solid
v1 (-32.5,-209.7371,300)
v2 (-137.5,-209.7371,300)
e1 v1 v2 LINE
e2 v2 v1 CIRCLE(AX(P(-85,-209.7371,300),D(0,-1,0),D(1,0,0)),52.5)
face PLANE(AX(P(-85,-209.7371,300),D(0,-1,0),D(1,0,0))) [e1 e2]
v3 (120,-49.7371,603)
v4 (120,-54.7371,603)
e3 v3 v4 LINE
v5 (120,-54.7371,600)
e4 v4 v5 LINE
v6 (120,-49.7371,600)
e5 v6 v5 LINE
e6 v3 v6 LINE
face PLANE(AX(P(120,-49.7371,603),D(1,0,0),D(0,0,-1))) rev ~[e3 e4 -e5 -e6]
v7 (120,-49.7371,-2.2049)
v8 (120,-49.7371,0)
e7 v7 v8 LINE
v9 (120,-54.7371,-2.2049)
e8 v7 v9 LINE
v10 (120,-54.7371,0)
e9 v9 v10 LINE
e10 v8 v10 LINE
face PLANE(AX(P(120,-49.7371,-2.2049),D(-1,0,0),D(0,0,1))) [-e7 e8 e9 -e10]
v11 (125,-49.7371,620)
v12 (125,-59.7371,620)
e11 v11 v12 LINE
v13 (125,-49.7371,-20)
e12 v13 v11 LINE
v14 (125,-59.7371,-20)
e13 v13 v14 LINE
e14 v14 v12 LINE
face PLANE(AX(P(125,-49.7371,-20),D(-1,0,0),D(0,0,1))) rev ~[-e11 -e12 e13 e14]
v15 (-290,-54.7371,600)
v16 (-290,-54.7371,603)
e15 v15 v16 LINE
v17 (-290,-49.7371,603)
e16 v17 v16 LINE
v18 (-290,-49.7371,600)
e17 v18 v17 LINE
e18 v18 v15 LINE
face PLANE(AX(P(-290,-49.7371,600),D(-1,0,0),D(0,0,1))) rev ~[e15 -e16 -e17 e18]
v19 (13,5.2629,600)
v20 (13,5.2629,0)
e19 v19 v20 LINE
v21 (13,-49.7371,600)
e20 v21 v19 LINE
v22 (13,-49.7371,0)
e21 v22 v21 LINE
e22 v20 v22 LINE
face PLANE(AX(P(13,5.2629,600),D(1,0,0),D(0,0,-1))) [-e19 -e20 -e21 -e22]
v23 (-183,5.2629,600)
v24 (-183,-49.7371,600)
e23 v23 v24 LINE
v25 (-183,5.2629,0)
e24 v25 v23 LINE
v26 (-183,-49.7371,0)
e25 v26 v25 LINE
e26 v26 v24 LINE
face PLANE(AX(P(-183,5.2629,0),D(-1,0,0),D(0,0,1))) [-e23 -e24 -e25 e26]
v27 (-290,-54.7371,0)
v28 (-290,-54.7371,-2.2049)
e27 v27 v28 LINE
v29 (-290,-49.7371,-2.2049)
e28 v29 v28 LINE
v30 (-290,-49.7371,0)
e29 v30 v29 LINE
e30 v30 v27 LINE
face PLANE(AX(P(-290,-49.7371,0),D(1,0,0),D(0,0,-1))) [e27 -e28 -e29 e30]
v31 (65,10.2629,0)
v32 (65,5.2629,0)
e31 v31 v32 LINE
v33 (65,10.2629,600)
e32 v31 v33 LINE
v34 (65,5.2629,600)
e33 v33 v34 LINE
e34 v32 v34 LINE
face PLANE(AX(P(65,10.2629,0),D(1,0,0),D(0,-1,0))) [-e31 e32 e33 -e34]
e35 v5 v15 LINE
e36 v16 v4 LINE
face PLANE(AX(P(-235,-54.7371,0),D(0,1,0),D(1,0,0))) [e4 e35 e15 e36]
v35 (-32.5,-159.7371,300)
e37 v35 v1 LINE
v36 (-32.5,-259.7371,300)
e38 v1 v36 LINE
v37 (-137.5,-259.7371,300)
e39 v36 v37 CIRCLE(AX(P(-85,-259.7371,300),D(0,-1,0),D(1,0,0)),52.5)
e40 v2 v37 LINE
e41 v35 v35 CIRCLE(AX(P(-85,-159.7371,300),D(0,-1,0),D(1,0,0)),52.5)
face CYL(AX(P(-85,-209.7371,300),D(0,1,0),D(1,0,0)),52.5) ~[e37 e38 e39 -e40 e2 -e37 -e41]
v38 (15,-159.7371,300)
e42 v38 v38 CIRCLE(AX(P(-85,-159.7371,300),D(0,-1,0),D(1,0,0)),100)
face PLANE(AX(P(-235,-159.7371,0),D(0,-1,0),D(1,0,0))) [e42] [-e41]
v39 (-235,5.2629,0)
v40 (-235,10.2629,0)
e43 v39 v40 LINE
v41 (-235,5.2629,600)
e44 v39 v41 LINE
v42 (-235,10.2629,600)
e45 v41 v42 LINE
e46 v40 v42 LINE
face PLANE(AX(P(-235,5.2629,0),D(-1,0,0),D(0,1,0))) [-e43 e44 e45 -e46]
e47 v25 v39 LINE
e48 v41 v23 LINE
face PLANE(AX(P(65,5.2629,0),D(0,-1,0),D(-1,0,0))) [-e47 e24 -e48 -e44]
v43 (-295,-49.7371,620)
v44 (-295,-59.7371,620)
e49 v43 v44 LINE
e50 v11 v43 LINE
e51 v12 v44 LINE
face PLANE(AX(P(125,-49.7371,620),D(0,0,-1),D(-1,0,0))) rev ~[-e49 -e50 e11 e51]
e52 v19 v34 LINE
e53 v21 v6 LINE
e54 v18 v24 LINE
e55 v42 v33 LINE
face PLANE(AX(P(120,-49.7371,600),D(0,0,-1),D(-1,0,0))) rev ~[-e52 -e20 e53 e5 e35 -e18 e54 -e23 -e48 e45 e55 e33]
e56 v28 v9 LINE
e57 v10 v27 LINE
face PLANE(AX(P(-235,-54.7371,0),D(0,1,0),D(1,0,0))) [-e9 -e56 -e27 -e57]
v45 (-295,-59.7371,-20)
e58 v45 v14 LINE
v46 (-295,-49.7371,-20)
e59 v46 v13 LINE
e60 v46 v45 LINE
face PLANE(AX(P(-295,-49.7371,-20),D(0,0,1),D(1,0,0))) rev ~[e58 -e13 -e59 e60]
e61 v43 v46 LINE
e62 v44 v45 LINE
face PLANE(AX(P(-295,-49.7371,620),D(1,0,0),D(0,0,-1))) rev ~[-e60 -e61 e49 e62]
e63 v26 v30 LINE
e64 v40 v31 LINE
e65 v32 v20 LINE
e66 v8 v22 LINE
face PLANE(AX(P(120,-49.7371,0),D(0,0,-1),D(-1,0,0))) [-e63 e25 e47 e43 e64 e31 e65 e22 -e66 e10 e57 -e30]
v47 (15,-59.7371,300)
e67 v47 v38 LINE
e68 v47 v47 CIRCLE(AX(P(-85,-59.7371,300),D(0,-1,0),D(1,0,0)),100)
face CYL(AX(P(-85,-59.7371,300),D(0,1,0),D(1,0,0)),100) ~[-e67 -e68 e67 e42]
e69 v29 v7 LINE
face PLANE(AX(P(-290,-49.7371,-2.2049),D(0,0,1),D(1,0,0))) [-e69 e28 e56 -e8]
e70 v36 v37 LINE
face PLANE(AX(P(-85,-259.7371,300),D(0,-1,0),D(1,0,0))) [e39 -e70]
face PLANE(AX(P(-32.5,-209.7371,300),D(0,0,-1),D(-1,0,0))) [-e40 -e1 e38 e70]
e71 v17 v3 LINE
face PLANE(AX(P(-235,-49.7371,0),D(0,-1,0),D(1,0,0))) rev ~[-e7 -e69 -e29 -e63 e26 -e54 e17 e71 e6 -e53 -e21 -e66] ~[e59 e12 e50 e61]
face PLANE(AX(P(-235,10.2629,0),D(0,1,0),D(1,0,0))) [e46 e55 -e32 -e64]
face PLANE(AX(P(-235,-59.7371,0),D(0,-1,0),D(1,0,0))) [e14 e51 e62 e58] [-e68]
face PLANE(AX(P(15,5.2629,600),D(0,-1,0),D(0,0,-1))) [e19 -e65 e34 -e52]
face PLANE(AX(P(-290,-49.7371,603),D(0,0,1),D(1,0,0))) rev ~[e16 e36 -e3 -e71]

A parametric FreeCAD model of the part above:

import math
import FreeCAD as App
import Part
import Sketcher
Q = App.Units.Quantity


def add_polygon(sketch, points):
    """Adds a closed chain of lines whose ends are joined by coincident constraints."""
    first, n = sketch.GeometryCount, len(points)
    for a, b in zip(points, points[1:] + points[:1]):
        sketch.addGeometry(Part.LineSegment(App.Vector(*a, 0), App.Vector(*b, 0)), False)
    for i in range(n):
        sketch.addConstraint(Sketcher.Constraint("Coincident", first + i, 2, first + (i + 1) % n, 1))

doc = App.newDocument("Part")
body = doc.addObject("PartDesign::Body", "Body")

sketch1 = body.newObject("Sketcher::SketchObject", "Sketch")
sketch1.AttachmentSupport = (doc.getObject("XY_Plane"), [""])
sketch1.MapMode = "FlatFace"
add_polygon(sketch1, [(65, 10), (-235, 10), (-235, 5), (65, 5)])
sketch1.addConstraint(Sketcher.Constraint("Horizontal", 0))
sketch1.addConstraint(Sketcher.Constraint("Vertical", 1))
sketch1.addConstraint(Sketcher.Constraint("Horizontal", 2))
sketch1.addConstraint(Sketcher.Constraint("Vertical", 3))
sketch1.addConstraint(Sketcher.Constraint("DistanceX", 0, 2, 0, 1, Q("300 mm")))
sketch1.addConstraint(Sketcher.Constraint("DistanceY", 1, 2, 1, 1, Q("5 mm")))
sketch1.addConstraint(Sketcher.Constraint("DistanceX", 0, 2, -1, 1, Q("235 mm")))
sketch1.addConstraint(Sketcher.Constraint("DistanceY", -1, 1, 0, 2, Q("10.263 mm")))
pad1 = body.newObject("PartDesign::Pad", "Pad")
pad1.Profile = sketch1
pad1.Length = 600

sketch2 = body.newObject("Sketcher::SketchObject", "Sketch001")
sketch2.AttachmentSupport = (doc.getObject("XZ_Plane"), [""])
sketch2.MapMode = "FlatFace"
sketch2.AttachmentOffset = App.Placement(App.Vector(0, 0, -5.2629), App.Rotation())
add_polygon(sketch2, [(-185, 600), (-185, 0), (15, 0), (15, 600)])
sketch2.addConstraint(Sketcher.Constraint("Vertical", 0))
sketch2.addConstraint(Sketcher.Constraint("Horizontal", 1))
sketch2.addConstraint(Sketcher.Constraint("Vertical", 2))
sketch2.addConstraint(Sketcher.Constraint("Horizontal", 3))
sketch2.addConstraint(Sketcher.Constraint("PointOnObject", 0, 2, -1))
sketch2.addConstraint(Sketcher.Constraint("DistanceX", 1, 1, 1, 2, Q("200 mm")))
sketch2.addConstraint(Sketcher.Constraint("DistanceY", 0, 2, 0, 1, Q("600 mm")))
sketch2.addConstraint(Sketcher.Constraint("DistanceX", 0, 2, -1, 1, Q("185 mm")))
pad2 = body.newObject("PartDesign::Pad", "Pad001")
pad2.Profile = sketch2
pad2.Length = 55

sketch3 = body.newObject("Sketcher::SketchObject", "Sketch002")
sketch3.AttachmentSupport = (doc.getObject("XZ_Plane"), [""])
sketch3.MapMode = "FlatFace"
sketch3.AttachmentOffset = App.Placement(App.Vector(0, 0, 49.7371), App.Rotation())
add_polygon(sketch3, [(-295, 620), (-295, -20), (125, -20), (125, 620)])
sketch3.addConstraint(Sketcher.Constraint("Vertical", 0))
sketch3.addConstraint(Sketcher.Constraint("Horizontal", 1))
sketch3.addConstraint(Sketcher.Constraint("Vertical", 2))
sketch3.addConstraint(Sketcher.Constraint("Horizontal", 3))
sketch3.addConstraint(Sketcher.Constraint("DistanceX", 1, 1, 1, 2, Q("420 mm")))
sketch3.addConstraint(Sketcher.Constraint("DistanceY", 0, 2, 0, 1, Q("640 mm")))
sketch3.addConstraint(Sketcher.Constraint("DistanceY", 0, 2, -1, 1, Q("20 mm")))
sketch3.addConstraint(Sketcher.Constraint("DistanceX", 0, 2, -1, 1, Q("295 mm")))
pad3 = body.newObject("PartDesign::Pad", "Pad002")
pad3.Profile = sketch3
pad3.Length = 10

sketch4 = body.newObject("Sketcher::SketchObject", "Sketch003")
sketch4.AttachmentSupport = (doc.getObject("XZ_Plane"), [""])
sketch4.MapMode = "FlatFace"
sketch4.AttachmentOffset = App.Placement(App.Vector(0, 0, 49.7371), App.Rotation())
add_polygon(sketch4, [(120, -2.2), (-290, -2.2), (-290, 0), (120, 0)])
add_polygon(sketch4, [(-290, 600), (-290, 603), (120, 603), (120, 600)])
sketch4.addConstraint(Sketcher.Constraint("Horizontal", 0))
sketch4.addConstraint(Sketcher.Constraint("Vertical", 1))
sketch4.addConstraint(Sketcher.Constraint("Horizontal", 2))
sketch4.addConstraint(Sketcher.Constraint("Vertical", 3))
sketch4.addConstraint(Sketcher.Constraint("Vertical", 4))
sketch4.addConstraint(Sketcher.Constraint("Horizontal", 5))
sketch4.addConstraint(Sketcher.Constraint("Vertical", 6))
sketch4.addConstraint(Sketcher.Constraint("Horizontal", 7))
sketch4.addConstraint(Sketcher.Constraint("PointOnObject", 1, 2, -1))
sketch4.addConstraint(Sketcher.Constraint("Vertical", 1, 2, 4, 2))
sketch4.addConstraint(Sketcher.Constraint("Vertical", 3, 2, 5, 2))
sketch4.addConstraint(Sketcher.Constraint("DistanceX", 0, 2, 0, 1, Q("410 mm")))
sketch4.addConstraint(Sketcher.Constraint("DistanceY", 4, 1, 4, 2, Q("3 mm")))
sketch4.addConstraint(Sketcher.Constraint("DistanceX", 0, 2, -1, 1, Q("290 mm")))
sketch4.addConstraint(Sketcher.Constraint("DistanceY", -1, 1, 4, 2, Q("603 mm")))
sketch4.addConstraint(Sketcher.Constraint("DistanceY", 1, 1, 1, 2, Q("2.205 mm")))
pocket1 = body.newObject("PartDesign::Pocket", "Pocket")
pocket1.Profile = sketch4
pocket1.Length = 5
pocket1.Reversed = True

sketch5 = body.newObject("Sketcher::SketchObject", "Sketch004")
sketch5.AttachmentSupport = (doc.getObject("YZ_Plane"), [""])
sketch5.MapMode = "FlatFace"
sketch5.AttachmentOffset = App.Placement(App.Vector(0, 0, 15), App.Rotation())
add_polygon(sketch5, [(-50, 0), (5, 0), (5, 600), (-50, 600)])
sketch5.addConstraint(Sketcher.Constraint("Horizontal", 0))
sketch5.addConstraint(Sketcher.Constraint("Vertical", 1))
sketch5.addConstraint(Sketcher.Constraint("Horizontal", 2))
sketch5.addConstraint(Sketcher.Constraint("Vertical", 3))
sketch5.addConstraint(Sketcher.Constraint("PointOnObject", 0, 2, -1))
sketch5.addConstraint(Sketcher.Constraint("DistanceX", 0, 1, 0, 2, Q("55 mm")))
sketch5.addConstraint(Sketcher.Constraint("DistanceY", 1, 1, 1, 2, Q("600 mm")))
sketch5.addConstraint(Sketcher.Constraint("DistanceX", -1, 1, 0, 2, Q("5.263 mm")))
pocket2 = body.newObject("PartDesign::Pocket", "Pocket001")
pocket2.Profile = sketch5
pocket2.Length = 2

sketch6 = body.newObject("Sketcher::SketchObject", "Sketch005")
sketch6.AttachmentSupport = (doc.getObject("YZ_Plane"), [""])
sketch6.MapMode = "FlatFace"
sketch6.AttachmentOffset = App.Placement(App.Vector(0, 0, -185), App.Rotation())
add_polygon(sketch6, [(5, 600), (5, 0), (-50, 0), (-50, 600)])
sketch6.addConstraint(Sketcher.Constraint("Vertical", 0))
sketch6.addConstraint(Sketcher.Constraint("Horizontal", 1))
sketch6.addConstraint(Sketcher.Constraint("Vertical", 2))
sketch6.addConstraint(Sketcher.Constraint("Horizontal", 3))
sketch6.addConstraint(Sketcher.Constraint("PointOnObject", 0, 2, -1))
sketch6.addConstraint(Sketcher.Constraint("DistanceX", 1, 2, 1, 1, Q("55 mm")))
sketch6.addConstraint(Sketcher.Constraint("DistanceY", 0, 2, 0, 1, Q("600 mm")))
sketch6.addConstraint(Sketcher.Constraint("DistanceX", -1, 1, 0, 2, Q("5.263 mm")))
pocket3 = body.newObject("PartDesign::Pocket", "Pocket002")
pocket3.Profile = sketch6
pocket3.Length = 2
pocket3.Reversed = True

sketch7 = body.newObject("Sketcher::SketchObject", "Sketch006")
sketch7.AttachmentSupport = (doc.getObject("XZ_Plane"), [""])
sketch7.MapMode = "FlatFace"
sketch7.AttachmentOffset = App.Placement(App.Vector(0, 0, 59.7371), App.Rotation())
sketch7.addGeometry(Part.Circle(App.Vector(-85, 300, 0), App.Vector(0, 0, 1), 100), False)
sketch7.addConstraint(Sketcher.Constraint("Diameter", 0, Q("200 mm")))
sketch7.addConstraint(Sketcher.Constraint("DistanceX", 0, 3, -1, 1, Q("85 mm")))
sketch7.addConstraint(Sketcher.Constraint("DistanceY", -1, 1, 0, 3, Q("300 mm")))
pad4 = body.newObject("PartDesign::Pad", "Pad003")
pad4.Profile = sketch7
pad4.Length = 100

sketch8 = body.newObject("Sketcher::SketchObject", "Sketch007")
sketch8.AttachmentSupport = (doc.getObject("XZ_Plane"), [""])
sketch8.MapMode = "FlatFace"
sketch8.AttachmentOffset = App.Placement(App.Vector(0, 0, 159.7371), App.Rotation())
sketch8.addGeometry(Part.Circle(App.Vector(-85, 300, 0), App.Vector(0, 0, 1), 52), False)
sketch8.addConstraint(Sketcher.Constraint("Diameter", 0, Q("105 mm")))
sketch8.addConstraint(Sketcher.Constraint("DistanceX", 0, 3, -1, 1, Q("85 mm")))
sketch8.addConstraint(Sketcher.Constraint("DistanceY", -1, 1, 0, 3, Q("300 mm")))
pad5 = body.newObject("PartDesign::Pad", "Pad004")
pad5.Profile = sketch8
pad5.Length = 50

sketch9 = body.newObject("Sketcher::SketchObject", "Sketch008")
sketch9.AttachmentSupport = (doc.getObject("XZ_Plane"), [""])
sketch9.MapMode = "FlatFace"
sketch9.AttachmentOffset = App.Placement(App.Vector(0, 0, 209.7371), App.Rotation())
sketch9.addGeometry(Part.LineSegment(App.Vector(-138, 300, 0), App.Vector(-32, 300, 0)), False)
sketch9.addGeometry(Part.ArcOfCircle(Part.Circle(App.Vector(-85, 300, 0), App.Vector(0, 0, 1), 52), math.radians(0), math.radians(180)), False)
sketch9.addConstraint(Sketcher.Constraint("Coincident", 0, 1, 1, 2))
sketch9.addConstraint(Sketcher.Constraint("Coincident", 1, 1, 0, 2))
sketch9.addConstraint(Sketcher.Constraint("Horizontal", 0))
sketch9.addConstraint(Sketcher.Constraint("Horizontal", 1, 3, 0, 1))
sketch9.addConstraint(Sketcher.Constraint("Radius", 1, Q("52.5 mm")))
sketch9.addConstraint(Sketcher.Constraint("DistanceX", 1, 3, -1, 1, Q("85 mm")))
sketch9.addConstraint(Sketcher.Constraint("DistanceY", -1, 1, 1, 3, Q("300 mm")))
pad6 = body.newObject("PartDesign::Pad", "Pad005")
pad6.Profile = sketch9
pad6.Length = 50

doc.recompute()
